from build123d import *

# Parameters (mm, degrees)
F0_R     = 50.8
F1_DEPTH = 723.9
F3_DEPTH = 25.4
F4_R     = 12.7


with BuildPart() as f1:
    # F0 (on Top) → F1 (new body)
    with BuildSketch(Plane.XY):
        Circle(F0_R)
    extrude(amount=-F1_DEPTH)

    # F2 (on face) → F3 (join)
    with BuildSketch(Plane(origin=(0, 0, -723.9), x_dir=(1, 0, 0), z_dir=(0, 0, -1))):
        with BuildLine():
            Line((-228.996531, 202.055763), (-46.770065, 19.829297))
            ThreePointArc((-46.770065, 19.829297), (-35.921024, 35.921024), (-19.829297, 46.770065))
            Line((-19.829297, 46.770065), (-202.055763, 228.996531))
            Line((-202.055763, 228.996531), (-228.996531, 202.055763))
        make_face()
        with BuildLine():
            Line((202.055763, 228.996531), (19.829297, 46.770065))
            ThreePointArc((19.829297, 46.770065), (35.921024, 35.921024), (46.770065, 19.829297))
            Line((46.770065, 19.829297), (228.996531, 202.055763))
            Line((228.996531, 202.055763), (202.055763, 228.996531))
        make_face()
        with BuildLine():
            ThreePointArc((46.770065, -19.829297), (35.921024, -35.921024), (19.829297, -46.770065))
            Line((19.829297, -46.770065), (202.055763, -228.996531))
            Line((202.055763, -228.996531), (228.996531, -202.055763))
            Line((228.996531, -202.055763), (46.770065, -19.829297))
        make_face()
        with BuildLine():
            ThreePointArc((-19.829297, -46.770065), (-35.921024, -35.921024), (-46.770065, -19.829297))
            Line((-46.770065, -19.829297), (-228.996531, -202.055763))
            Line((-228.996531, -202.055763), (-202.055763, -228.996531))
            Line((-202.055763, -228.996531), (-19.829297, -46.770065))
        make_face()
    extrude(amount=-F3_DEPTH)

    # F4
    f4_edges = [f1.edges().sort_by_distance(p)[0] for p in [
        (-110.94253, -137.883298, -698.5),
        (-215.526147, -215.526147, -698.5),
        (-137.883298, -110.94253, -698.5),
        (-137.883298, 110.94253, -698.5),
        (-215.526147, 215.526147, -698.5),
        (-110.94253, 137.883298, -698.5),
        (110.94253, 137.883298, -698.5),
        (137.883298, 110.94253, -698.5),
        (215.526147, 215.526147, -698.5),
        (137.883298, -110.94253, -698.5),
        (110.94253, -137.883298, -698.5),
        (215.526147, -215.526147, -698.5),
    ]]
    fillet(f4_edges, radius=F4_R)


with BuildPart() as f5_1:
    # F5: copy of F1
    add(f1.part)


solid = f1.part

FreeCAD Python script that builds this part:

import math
import FreeCAD as App
import Part
import Sketcher
Q = App.Units.Quantity


def edges_at(feature, points):
    """Names of the edges that pass closest to the given points."""
    edges = feature.Shape.Edges
    near = lambda p: min(range(len(edges)), key=lambda i: edges[i].distToShape(Part.Vertex(*p))[0])
    return sorted({f"Edge{near(p) + 1}" for p in points})

doc = App.newDocument("Part")
body = doc.addObject("PartDesign::Body", "Body")

# Sketch on XY plane
sketch1 = body.newObject("Sketcher::SketchObject", "Sketch")
sketch1.AttachmentSupport = (doc.getObject("XY_Plane"), [""])
sketch1.MapMode = "FlatFace"
sketch1.addGeometry(Part.Circle(App.Vector(0, 0, 0), App.Vector(0, 0, 1), 51), False)
sketch1.addConstraint([
    Sketcher.Constraint("Coincident", 0, 3, -1, 1),
    Sketcher.Constraint("Diameter", 0, Q("4 in")),
])
pad1 = body.newObject("PartDesign::Pad", "Pad")
pad1.Profile = sketch1
pad1.Length = Q("28.5 in")
pad1.Reversed = True

# Sketch on XY plane
sketch2 = body.newObject("Sketcher::SketchObject", "Sketch001")
sketch2.AttachmentSupport = (doc.getObject("XY_Plane"), [""])
sketch2.MapMode = "FlatFace"
sketch2.AttachmentOffset = App.Placement(App.Vector(0, 0, -28.5 * 25.4), App.Rotation())
sketch2.addGeometry([
    Part.LineSegment(App.Vector(-229, -202, 0), App.Vector(-47, -20, 0)),  # 0
    Part.ArcOfCircle(Part.Circle(App.Vector(0, 0, 0), App.Vector(0, 0, 1), 51), math.radians(-157), math.radians(-113)),  # 1
    Part.LineSegment(App.Vector(-20, -47, 0), App.Vector(-202, -229, 0)),  # 2
    Part.LineSegment(App.Vector(-202, -229, 0), App.Vector(-229, -202, 0)),  # 3
    Part.LineSegment(App.Vector(202, -229, 0), App.Vector(20, -47, 0)),  # 4
    Part.ArcOfCircle(Part.Circle(App.Vector(0, 0, 0), App.Vector(0, 0, 1), 51), math.radians(-67), math.radians(-23)),  # 5
    Part.LineSegment(App.Vector(47, -20, 0), App.Vector(229, -202, 0)),  # 6
    Part.LineSegment(App.Vector(229, -202, 0), App.Vector(202, -229, 0)),  # 7
    Part.ArcOfCircle(Part.Circle(App.Vector(0, 0, 0), App.Vector(0, 0, 1), 51), math.radians(23), math.radians(67)),  # 8
    Part.LineSegment(App.Vector(20, 47, 0), App.Vector(202, 229, 0)),  # 9
    Part.LineSegment(App.Vector(202, 229, 0), App.Vector(229, 202, 0)),  # 10
    Part.LineSegment(App.Vector(229, 202, 0), App.Vector(47, 20, 0)),  # 11
    Part.ArcOfCircle(Part.Circle(App.Vector(0, 0, 0), App.Vector(0, 0, 1), 51), math.radians(113), math.radians(157)),  # 12
    Part.LineSegment(App.Vector(-47, 20, 0), App.Vector(-229, 202, 0)),  # 13
    Part.LineSegment(App.Vector(-229, 202, 0), App.Vector(-202, 229, 0)),  # 14
    Part.LineSegment(App.Vector(-202, 229, 0), App.Vector(-20, 47, 0)),  # 15
], False)
sketch2.addConstraint([
    Sketcher.Constraint("Coincident", 0, 2, 1, 1),
    Sketcher.Constraint("Coincident", 1, 2, 2, 1),
    Sketcher.Constraint("Coincident", 2, 2, 3, 1),
    Sketcher.Constraint("Coincident", 3, 2, 0, 1),
    Sketcher.Constraint("Coincident", 4, 2, 5, 1),
    Sketcher.Constraint("Coincident", 5, 2, 6, 1),
    Sketcher.Constraint("Coincident", 6, 2, 7, 1),
    Sketcher.Constraint("Coincident", 7, 2, 4, 1),
    Sketcher.Constraint("Coincident", 8, 2, 9, 1),
    Sketcher.Constraint("Coincident", 9, 2, 10, 1),
    Sketcher.Constraint("Coincident", 10, 2, 11, 1),
    Sketcher.Constraint("Coincident", 11, 2, 8, 1),
    Sketcher.Constraint("Coincident", 12, 2, 13, 1),
    Sketcher.Constraint("Coincident", 13, 2, 14, 1),
    Sketcher.Constraint("Coincident", 14, 2, 15, 1),
    Sketcher.Constraint("Coincident", 15, 2, 12, 1),
    Sketcher.Constraint("Coincident", 1, 3, -1, 1),
    Sketcher.Constraint("Coincident", 5, 3, -1, 1),
    Sketcher.Constraint("Coincident", 8, 3, -1, 1),
    Sketcher.Constraint("Coincident", 12, 3, -1, 1),
    Sketcher.Constraint("Equal", 1, 5),
    Sketcher.Constraint("Equal", 5, 8),
    Sketcher.Constraint("Equal", 8, 12),
    Sketcher.Constraint("Symmetric", 2, 2, 9, 2, -1, 1),
    Sketcher.Constraint("Symmetric", 3, 2, 10, 2, -1, 1),
    Sketcher.Constraint("Symmetric", 6, 2, 13, 2, -1, 1),
    Sketcher.Constraint("Symmetric", 7, 2, 14, 2, -1, 1),
    Sketcher.Constraint("Symmetric", 3, 2, 6, 2, -2),
    Sketcher.Constraint("Symmetric", 2, 2, 7, 2, -2),
    Sketcher.Constraint("Parallel", 0, 2),
    Sketcher.Constraint("Perpendicular", 2, 3),
    Sketcher.Constraint("Parallel", 3, 4),
    Sketcher.Constraint("Parallel", 4, 6),
    Sketcher.Constraint("Perpendicular", 6, 7),
    Sketcher.Constraint("Parallel", 7, 9),
    Sketcher.Constraint("Perpendicular", 10, 11),
    Sketcher.Constraint("Perpendicular", 11, 13),
    Sketcher.Constraint("Perpendicular", 14, 15),
    Sketcher.Constraint("Equal", 0, 2),
    Sketcher.Constraint("Distance", 3, Q("1.5 in")),
    Sketcher.Constraint("Radius", 1, Q("50.800009 mm")),
    Sketcher.Constraint("DistanceX", 2, 2, 0, 2, Q("155.285698 mm")),
])
pad2 = body.newObject("PartDesign::Pad", "Pad001")
pad2.Profile = sketch2
pad2.Length = Q("1 in")
doc.recompute()

fillet = body.newObject("PartDesign::Fillet", "Fillet")
fillet.Base = (pad2, edges_at(pad2, [
    (-110.943, -137.883, -698.5),
    (-215.526, -215.526, -698.5),
    (-137.883, -110.943, -698.5),
    (-137.883, 110.943, -698.5),
    (-215.526, 215.526, -698.5),
    (-110.943, 137.883, -698.5),
    (110.943, 137.883, -698.5),
    (137.883, 110.943, -698.5),
    (215.526, 215.526, -698.5),
    (137.883, -110.943, -698.5),
    (110.943, -137.883, -698.5),
    (215.526, -215.526, -698.5),
]))
fillet.Radius = Q("0.5 in")
body2 = doc.addObject("PartDesign::Body", "Body001")
doc.recompute()

body2.BaseFeature = body
doc.recompute()
body.Visibility = False

doc.recompute()
